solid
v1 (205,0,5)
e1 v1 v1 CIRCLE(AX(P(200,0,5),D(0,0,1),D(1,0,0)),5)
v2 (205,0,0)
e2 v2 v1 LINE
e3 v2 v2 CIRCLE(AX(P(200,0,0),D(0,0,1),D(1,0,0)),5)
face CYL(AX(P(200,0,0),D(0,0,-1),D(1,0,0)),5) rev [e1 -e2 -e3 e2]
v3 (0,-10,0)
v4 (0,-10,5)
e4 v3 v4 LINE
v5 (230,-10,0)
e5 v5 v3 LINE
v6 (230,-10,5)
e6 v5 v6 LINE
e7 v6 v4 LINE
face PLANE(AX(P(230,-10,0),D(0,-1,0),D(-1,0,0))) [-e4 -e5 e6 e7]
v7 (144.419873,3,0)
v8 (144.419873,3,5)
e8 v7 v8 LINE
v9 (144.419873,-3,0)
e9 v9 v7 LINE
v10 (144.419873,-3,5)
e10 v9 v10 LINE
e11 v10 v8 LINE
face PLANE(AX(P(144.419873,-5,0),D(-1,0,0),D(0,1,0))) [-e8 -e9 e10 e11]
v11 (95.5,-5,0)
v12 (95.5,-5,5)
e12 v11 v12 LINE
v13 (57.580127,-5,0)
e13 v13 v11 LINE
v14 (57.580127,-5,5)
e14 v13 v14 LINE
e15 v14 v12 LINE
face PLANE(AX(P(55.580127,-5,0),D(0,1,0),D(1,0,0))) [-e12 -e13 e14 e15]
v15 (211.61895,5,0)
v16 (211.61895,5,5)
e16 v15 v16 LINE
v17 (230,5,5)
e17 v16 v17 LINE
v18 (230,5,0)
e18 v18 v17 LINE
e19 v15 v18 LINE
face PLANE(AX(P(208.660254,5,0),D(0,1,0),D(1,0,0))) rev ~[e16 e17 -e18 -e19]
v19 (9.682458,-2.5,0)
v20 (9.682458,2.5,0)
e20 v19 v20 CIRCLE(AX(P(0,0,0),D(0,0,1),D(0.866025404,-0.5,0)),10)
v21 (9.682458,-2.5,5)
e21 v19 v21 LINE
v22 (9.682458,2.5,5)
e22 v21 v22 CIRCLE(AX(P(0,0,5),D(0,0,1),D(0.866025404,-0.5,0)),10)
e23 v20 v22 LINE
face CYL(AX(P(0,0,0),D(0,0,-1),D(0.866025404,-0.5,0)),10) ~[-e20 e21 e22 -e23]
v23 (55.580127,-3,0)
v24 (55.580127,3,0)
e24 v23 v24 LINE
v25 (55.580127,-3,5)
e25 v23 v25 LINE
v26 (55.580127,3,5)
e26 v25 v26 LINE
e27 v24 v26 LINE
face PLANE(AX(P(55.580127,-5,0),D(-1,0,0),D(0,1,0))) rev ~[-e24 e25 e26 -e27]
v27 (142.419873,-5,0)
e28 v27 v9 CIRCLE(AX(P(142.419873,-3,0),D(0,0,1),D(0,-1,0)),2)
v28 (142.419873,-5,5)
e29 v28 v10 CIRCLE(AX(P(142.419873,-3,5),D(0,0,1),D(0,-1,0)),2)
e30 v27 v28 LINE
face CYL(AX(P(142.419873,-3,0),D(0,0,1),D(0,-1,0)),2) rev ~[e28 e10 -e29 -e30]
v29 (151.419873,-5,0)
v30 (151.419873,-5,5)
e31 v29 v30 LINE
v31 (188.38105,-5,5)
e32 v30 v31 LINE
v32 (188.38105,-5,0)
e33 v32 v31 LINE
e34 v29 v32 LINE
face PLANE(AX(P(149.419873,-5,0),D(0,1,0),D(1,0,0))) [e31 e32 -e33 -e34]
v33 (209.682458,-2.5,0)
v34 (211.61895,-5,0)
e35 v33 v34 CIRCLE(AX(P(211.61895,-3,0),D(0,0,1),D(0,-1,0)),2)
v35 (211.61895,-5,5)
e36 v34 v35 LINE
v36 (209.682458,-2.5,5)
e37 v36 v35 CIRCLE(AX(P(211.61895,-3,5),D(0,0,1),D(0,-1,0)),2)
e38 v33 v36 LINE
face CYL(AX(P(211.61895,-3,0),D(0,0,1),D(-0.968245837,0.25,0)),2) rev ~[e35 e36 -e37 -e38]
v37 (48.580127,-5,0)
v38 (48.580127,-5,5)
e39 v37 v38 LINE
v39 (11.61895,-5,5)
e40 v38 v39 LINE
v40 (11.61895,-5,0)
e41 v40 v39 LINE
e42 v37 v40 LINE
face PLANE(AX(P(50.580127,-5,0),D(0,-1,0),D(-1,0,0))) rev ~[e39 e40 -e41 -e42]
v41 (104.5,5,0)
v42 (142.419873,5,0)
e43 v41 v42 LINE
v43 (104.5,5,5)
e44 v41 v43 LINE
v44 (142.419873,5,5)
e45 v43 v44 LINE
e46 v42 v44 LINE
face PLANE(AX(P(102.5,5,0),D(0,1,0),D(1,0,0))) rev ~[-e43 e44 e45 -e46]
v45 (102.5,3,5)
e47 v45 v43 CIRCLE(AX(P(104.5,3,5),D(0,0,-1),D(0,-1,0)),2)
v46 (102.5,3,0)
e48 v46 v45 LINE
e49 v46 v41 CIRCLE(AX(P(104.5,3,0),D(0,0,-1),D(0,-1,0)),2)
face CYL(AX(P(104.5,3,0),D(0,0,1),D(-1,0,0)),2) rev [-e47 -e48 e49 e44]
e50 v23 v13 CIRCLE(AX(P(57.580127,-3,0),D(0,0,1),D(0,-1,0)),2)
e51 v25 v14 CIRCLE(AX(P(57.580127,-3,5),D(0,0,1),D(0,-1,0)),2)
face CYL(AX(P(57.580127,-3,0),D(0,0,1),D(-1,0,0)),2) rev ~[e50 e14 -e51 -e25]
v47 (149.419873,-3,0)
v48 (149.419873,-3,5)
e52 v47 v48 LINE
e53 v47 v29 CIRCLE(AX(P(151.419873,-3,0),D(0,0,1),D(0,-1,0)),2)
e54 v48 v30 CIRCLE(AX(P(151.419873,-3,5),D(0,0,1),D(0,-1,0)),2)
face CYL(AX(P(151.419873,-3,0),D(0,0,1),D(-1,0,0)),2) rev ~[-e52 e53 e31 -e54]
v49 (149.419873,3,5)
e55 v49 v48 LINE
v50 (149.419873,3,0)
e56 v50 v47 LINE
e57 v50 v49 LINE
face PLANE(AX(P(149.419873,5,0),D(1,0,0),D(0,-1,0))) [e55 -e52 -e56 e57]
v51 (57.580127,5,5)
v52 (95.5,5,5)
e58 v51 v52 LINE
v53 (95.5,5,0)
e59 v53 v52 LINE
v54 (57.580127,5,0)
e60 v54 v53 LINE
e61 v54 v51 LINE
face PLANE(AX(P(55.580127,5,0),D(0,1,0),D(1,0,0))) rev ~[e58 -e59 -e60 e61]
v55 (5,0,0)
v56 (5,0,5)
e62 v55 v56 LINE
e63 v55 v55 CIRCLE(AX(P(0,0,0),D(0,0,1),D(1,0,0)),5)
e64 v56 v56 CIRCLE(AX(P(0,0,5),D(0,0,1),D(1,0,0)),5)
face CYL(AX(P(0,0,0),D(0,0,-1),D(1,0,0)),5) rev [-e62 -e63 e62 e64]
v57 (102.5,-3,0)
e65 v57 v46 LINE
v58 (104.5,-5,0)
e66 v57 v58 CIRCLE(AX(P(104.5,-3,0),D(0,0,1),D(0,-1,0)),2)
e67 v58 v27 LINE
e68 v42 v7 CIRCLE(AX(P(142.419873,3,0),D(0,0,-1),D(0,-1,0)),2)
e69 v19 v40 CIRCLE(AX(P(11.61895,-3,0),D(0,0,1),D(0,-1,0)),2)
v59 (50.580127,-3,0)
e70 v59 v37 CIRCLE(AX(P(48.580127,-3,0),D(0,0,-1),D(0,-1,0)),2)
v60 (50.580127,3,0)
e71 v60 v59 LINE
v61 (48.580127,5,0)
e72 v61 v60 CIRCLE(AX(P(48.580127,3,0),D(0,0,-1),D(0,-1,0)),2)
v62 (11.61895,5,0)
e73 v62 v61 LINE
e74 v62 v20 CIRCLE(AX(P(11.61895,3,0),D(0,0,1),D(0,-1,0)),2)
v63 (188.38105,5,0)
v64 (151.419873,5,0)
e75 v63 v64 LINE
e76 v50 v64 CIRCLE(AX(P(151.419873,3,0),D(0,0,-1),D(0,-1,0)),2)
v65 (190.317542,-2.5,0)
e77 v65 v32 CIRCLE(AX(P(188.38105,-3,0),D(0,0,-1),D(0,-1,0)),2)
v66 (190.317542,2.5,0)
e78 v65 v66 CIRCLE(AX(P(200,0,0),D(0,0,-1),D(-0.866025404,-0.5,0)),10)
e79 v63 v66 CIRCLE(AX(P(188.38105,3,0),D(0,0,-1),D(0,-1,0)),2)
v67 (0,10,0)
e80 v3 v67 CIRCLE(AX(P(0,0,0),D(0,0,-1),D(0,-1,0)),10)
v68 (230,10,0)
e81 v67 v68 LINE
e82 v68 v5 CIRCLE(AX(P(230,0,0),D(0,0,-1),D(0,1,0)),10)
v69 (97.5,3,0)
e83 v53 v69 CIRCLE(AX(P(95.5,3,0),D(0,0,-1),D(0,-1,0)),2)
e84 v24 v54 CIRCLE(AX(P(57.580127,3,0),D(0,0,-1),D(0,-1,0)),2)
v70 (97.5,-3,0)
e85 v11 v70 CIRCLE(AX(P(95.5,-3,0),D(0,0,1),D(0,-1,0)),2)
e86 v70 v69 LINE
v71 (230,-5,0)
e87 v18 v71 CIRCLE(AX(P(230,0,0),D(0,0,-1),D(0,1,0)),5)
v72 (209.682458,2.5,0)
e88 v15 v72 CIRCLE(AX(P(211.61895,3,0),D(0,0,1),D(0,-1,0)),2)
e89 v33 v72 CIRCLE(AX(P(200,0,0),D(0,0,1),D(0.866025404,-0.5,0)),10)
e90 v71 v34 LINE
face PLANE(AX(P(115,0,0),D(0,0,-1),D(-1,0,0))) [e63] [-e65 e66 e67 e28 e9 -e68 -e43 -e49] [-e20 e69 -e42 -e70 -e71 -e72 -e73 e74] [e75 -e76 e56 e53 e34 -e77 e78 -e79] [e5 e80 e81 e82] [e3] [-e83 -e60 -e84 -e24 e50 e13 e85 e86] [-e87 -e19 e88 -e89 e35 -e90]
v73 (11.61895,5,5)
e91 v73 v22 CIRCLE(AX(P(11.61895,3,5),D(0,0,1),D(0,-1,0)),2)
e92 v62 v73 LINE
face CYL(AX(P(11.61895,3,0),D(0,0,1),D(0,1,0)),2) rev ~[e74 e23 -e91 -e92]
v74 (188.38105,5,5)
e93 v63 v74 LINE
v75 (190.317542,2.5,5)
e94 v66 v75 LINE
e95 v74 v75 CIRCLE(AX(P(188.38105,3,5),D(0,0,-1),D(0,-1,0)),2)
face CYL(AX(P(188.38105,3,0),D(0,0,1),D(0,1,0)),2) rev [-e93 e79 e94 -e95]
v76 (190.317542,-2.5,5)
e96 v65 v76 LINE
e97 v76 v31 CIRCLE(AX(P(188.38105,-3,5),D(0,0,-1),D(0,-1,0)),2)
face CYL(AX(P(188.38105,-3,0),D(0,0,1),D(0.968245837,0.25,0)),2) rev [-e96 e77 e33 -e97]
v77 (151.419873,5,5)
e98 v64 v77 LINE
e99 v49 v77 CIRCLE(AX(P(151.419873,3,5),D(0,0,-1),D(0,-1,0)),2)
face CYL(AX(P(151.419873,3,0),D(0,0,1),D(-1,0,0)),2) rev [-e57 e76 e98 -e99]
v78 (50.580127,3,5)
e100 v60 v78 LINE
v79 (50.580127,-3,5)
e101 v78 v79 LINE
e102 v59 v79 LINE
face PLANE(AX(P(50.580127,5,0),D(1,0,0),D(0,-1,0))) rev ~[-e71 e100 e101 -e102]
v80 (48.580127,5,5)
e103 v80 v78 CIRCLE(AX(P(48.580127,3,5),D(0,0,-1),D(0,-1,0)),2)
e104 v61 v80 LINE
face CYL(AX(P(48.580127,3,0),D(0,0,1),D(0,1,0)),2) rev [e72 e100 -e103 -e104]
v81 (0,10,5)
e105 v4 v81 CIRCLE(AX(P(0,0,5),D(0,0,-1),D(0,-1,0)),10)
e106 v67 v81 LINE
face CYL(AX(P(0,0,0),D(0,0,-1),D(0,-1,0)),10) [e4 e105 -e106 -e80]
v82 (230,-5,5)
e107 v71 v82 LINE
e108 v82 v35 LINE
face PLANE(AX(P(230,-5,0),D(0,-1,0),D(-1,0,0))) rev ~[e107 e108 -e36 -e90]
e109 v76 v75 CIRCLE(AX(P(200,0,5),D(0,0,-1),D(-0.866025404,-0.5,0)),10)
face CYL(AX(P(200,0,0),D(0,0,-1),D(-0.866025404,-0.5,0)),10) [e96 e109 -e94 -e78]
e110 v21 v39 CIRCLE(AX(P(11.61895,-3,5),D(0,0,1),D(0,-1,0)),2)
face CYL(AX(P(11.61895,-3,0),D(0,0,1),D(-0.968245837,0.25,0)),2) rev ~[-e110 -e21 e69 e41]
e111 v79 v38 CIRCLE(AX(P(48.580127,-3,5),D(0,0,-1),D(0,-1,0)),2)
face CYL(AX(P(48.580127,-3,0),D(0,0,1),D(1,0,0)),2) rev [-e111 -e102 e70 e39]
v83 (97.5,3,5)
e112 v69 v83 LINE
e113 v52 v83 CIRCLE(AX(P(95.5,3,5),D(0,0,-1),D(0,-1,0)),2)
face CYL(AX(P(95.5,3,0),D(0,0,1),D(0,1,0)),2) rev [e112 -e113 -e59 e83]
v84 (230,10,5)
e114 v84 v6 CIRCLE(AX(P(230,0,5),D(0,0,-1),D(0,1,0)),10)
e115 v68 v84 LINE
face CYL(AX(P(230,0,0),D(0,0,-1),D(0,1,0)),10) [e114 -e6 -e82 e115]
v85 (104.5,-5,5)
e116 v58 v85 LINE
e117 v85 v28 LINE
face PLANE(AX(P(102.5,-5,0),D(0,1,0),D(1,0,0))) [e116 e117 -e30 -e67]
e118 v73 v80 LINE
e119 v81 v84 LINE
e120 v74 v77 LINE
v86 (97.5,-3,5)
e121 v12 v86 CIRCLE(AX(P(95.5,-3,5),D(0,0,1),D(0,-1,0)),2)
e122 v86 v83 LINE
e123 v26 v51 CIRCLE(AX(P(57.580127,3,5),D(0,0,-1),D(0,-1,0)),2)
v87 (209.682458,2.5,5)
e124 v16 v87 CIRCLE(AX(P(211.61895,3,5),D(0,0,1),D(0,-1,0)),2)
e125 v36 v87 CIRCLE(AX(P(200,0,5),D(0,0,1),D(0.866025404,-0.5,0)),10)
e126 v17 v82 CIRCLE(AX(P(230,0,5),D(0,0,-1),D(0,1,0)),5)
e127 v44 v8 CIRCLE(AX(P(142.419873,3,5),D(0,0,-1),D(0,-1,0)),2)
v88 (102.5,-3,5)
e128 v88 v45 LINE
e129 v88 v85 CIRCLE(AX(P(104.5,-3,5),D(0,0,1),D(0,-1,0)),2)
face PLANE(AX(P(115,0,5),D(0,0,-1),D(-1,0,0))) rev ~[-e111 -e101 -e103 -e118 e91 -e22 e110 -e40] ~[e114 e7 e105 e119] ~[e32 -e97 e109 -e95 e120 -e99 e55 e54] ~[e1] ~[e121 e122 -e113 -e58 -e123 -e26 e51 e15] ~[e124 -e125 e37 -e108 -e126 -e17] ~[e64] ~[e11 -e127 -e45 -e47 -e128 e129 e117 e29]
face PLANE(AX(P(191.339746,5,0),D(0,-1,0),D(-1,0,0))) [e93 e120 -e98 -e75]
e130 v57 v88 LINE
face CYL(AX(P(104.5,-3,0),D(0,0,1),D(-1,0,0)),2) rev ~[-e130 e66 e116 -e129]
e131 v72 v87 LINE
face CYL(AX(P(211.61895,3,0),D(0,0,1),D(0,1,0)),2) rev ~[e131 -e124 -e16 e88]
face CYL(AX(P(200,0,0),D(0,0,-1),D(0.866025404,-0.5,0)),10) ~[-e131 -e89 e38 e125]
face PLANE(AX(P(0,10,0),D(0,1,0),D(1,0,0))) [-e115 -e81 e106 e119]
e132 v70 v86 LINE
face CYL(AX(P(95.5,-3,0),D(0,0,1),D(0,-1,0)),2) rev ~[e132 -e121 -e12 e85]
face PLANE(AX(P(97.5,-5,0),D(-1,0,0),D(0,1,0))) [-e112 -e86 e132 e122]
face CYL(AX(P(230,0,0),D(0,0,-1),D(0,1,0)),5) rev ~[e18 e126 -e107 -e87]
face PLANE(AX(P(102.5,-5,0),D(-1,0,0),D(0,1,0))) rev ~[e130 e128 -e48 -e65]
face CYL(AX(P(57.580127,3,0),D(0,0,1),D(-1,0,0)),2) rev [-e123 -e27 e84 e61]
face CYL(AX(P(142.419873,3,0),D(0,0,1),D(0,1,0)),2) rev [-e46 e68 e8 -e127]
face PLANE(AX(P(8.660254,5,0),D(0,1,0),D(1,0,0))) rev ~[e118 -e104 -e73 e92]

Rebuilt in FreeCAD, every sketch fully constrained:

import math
import FreeCAD as App
import Part
import Sketcher


def edges_at(feature, points):
    """Names of the edges that pass closest to the given points."""
    edges = feature.Shape.Edges
    near = lambda p: min(range(len(edges)), key=lambda i: edges[i].distToShape(Part.Vertex(*p))[0])
    return sorted({f"Edge{near(p) + 1}" for p in points})


def add_polygon(sketch, points):
    """Adds a closed chain of lines whose ends are joined by coincident constraints."""
    first, n = sketch.GeometryCount, len(points)
    for a, b in zip(points, points[1:] + points[:1]):
        sketch.addGeometry(Part.LineSegment(App.Vector(*a, 0), App.Vector(*b, 0)), False)
    for i in range(n):
        sketch.addConstraint(Sketcher.Constraint("Coincident", first + i, 2, first + (i + 1) % n, 1))

doc = App.newDocument("Part")
body = doc.addObject("PartDesign::Body", "Body")

# Sketch on XY plane
sketch1 = body.newObject("Sketcher::SketchObject", "Sketch")
sketch1.AttachmentSupport = (doc.getObject("XY_Plane"), [""])
sketch1.MapMode = "FlatFace"
sketch1.addGeometry(Part.LineSegment(App.Vector(230, 10, 0), App.Vector(0, 10, 0)), False)  # 0
sketch1.addGeometry(Part.ArcOfCircle(Part.Circle(App.Vector(0, 0, 0), App.Vector(0, 0, 1), 10), math.radians(90), math.radians(270)), False)  # 1
sketch1.addGeometry(Part.LineSegment(App.Vector(0, -10, 0), App.Vector(230, -10, 0)), False)  # 2
sketch1.addGeometry(Part.ArcOfCircle(Part.Circle(App.Vector(230, 0, 0), App.Vector(0, 0, 1), 10), math.radians(-90), math.radians(90)), False)  # 3
sketch1.addGeometry(Part.LineSegment(App.Vector(208.660254, 5, 0), App.Vector(230, 5, 0)), False)  # 4
sketch1.addGeometry(Part.ArcOfCircle(Part.Circle(App.Vector(230, 0, 0), App.Vector(0, 0, 1), 5), math.radians(-90), math.radians(90)), False)  # 5
sketch1.addGeometry(Part.LineSegment(App.Vector(230, -5, 0), App.Vector(208.660254, -5, 0)), False)  # 6
sketch1.addGeometry(Part.ArcOfCircle(Part.Circle(App.Vector(200, 0, 0), App.Vector(0, 0, 1), 10), math.radians(-30), math.radians(30)), False)  # 7
sketch1.addGeometry(Part.Circle(App.Vector(200, 0, 0), App.Vector(0, 0, 1), 5), False)  # 8
sketch1.addGeometry(Part.LineSegment(App.Vector(149.419873, -5, 0), App.Vector(149.419873, 5, 0)), False)  # 9
sketch1.addGeometry(Part.LineSegment(App.Vector(149.419873, 5, 0), App.Vector(191.339746, 5, 0)), False)  # 10
sketch1.addGeometry(Part.ArcOfCircle(Part.Circle(App.Vector(200, 0, 0), App.Vector(0, 0, 1), 10), math.radians(150), math.radians(210)), False)  # 11
sketch1.addGeometry(Part.LineSegment(App.Vector(191.339746, -5, 0), App.Vector(149.419873, -5, 0)), False)  # 12
add_polygon(sketch1, [(102.5, -5), (102.5, 5), (144.419873, 5), (144.419873, -5)])  # lines 13-16
add_polygon(sketch1, [(55.580127, -5), (55.580127, 5), (97.5, 5), (97.5, -5)])  # lines 17-20
sketch1.addGeometry(Part.Circle(App.Vector(0, 0, 0), App.Vector(0, 0, 1), 5), False)  # 21
sketch1.addGeometry(Part.LineSegment(App.Vector(8.660254, 5, 0), App.Vector(50.580127, 5, 0)), False)  # 22
sketch1.addGeometry(Part.LineSegment(App.Vector(50.580127, 5, 0), App.Vector(50.580127, -5, 0)), False)  # 23
sketch1.addGeometry(Part.LineSegment(App.Vector(50.580127, -5, 0), App.Vector(8.660254, -5, 0)), False)  # 24
sketch1.addGeometry(Part.ArcOfCircle(Part.Circle(App.Vector(0, 0, 0), App.Vector(0, 0, 1), 10), math.radians(-30), math.radians(30)), False)  # 25
sketch1.addConstraint([
    Sketcher.Constraint("Tangent", 0, 2, 1, 1),
    Sketcher.Constraint("Tangent", 1, 2, 2, 1),
    Sketcher.Constraint("Tangent", 2, 2, 3, 1),
    Sketcher.Constraint("Tangent", 3, 2, 0, 1),
    Sketcher.Constraint("Tangent", 4, 2, 5, 2),
    Sketcher.Constraint("Tangent", 5, 1, 6, 1),
    Sketcher.Constraint("Coincident", 6, 2, 7, 1),
    Sketcher.Constraint("Coincident", 7, 2, 4, 1),
    Sketcher.Constraint("Coincident", 9, 2, 10, 1),
    Sketcher.Constraint("Coincident", 10, 2, 11, 1),
    Sketcher.Constraint("Coincident", 11, 2, 12, 1),
    Sketcher.Constraint("Coincident", 12, 2, 9, 1),
    Sketcher.Constraint("Coincident", 22, 2, 23, 1),
    Sketcher.Constraint("Coincident", 23, 2, 24, 1),
    Sketcher.Constraint("Coincident", 24, 2, 25, 1),
    Sketcher.Constraint("Coincident", 25, 2, 22, 1),
    Sketcher.Constraint("Horizontal", 0),
    Sketcher.Constraint("Horizontal", 2),
    Sketcher.Constraint("Horizontal", 4),
    Sketcher.Constraint("Horizontal", 6),
    Sketcher.Constraint("Vertical", 9),
    Sketcher.Constraint("Horizontal", 10),
    Sketcher.Constraint("Horizontal", 12),
    Sketcher.Constraint("Vertical", 13),
    Sketcher.Constraint("Horizontal", 14),
    Sketcher.Constraint("Vertical", 15),
    Sketcher.Constraint("Horizontal", 16),
    Sketcher.Constraint("Vertical", 17),
    Sketcher.Constraint("Horizontal", 18),
    Sketcher.Constraint("Vertical", 19),
    Sketcher.Constraint("Horizontal", 20),
    Sketcher.Constraint("Horizontal", 22),
    Sketcher.Constraint("Vertical", 23),
    Sketcher.Constraint("Horizontal", 24),
    Sketcher.Constraint("Coincident", 1, 3, -1, 1),
    Sketcher.Constraint("Coincident", 21, 3, -1, 1),
    Sketcher.Constraint("Coincident", 25, 3, -1, 1),
    Sketcher.Constraint("Coincident", 5, 3, 3, 3),
    Sketcher.Constraint("Coincident", 8, 3, 7, 3),
    Sketcher.Constraint("Coincident", 11, 3, 7, 3),
    Sketcher.Constraint("Equal", 3, 7),
    Sketcher.Constraint("Equal", 5, 8),
    Sketcher.Constraint("Equal", 7, 11),
    Sketcher.Constraint("Equal", 8, 21),
    Sketcher.Constraint("Equal", 11, 25),
    Sketcher.Constraint("Symmetric", 10, 2, 11, 2, -1),
    Sketcher.Constraint("Horizontal", 7, 2, 9, 2),
    Sketcher.Constraint("Horizontal", 10, 2, 13, 2),
    Sketcher.Constraint("Horizontal", 12, 2, 15, 2),
    Sketcher.Constraint("Horizontal", 14, 2, 17, 2),
    Sketcher.Constraint("Horizontal", 16, 2, 19, 2),
    Sketcher.Constraint("Horizontal", 18, 2, 22, 2),
    Sketcher.Constraint("Horizontal", 20, 2, 23, 2),
    Sketcher.Constraint("Equal", 12, 14),
    Sketcher.Constraint("Equal", 16, 18),
    Sketcher.Constraint("Equal", 20, 22),
    Sketcher.Constraint("Diameter", 8, 10.0),
    Sketcher.Constraint("Radius", 1, 10.0),
    Sketcher.Constraint("DistanceX", 0, 2, 0, 1, 230.0),
    Sketcher.Constraint("DistanceX", -1, 1, 7, 3, 200.0),
    Sketcher.Constraint("DistanceX", 14, 2, 9, 2, 5.0),
    Sketcher.Constraint("DistanceX", 18, 2, 13, 2, 5.0),
    Sketcher.Constraint("DistanceX", 22, 2, 17, 2, 5.0),
])
pad1 = body.newObject("PartDesign::Pad", "Pad")
pad1.Profile = sketch1
pad1.Length = 5
doc.recompute()

fillet = body.newObject("PartDesign::Fillet", "Fillet")
fillet.Base = (pad1, edges_at(pad1, [(50.58, 5, 2.5)]))
fillet.Radius = 2
doc.recompute()

fillet2 = body.newObject("PartDesign::Fillet", "Fillet001")
fillet2.Base = (fillet, edges_at(fillet, [
    (208.66, 5, 2.5),
    (208.66, -5, 2.5),
    (144.42, 5, 2.5),
    (102.5, 5, 2.5),
    (102.5, -5, 2.5),
    (144.42, -5, 2.5),
    (191.34, -5, 2.5),
    (191.34, 5, 2.5),
    (149.42, 5, 2.5),
    (149.42, -5, 2.5),
    (8.66, 5, 2.5),
    (8.66, -5, 2.5),
    (50.58, -5, 2.5),
    (97.5, 5, 2.5),
    (55.58, 5, 2.5),
    (55.58, -5, 2.5),
    (97.5, -5, 2.5),
]))
fillet2.Radius = 2

doc.recompute()
